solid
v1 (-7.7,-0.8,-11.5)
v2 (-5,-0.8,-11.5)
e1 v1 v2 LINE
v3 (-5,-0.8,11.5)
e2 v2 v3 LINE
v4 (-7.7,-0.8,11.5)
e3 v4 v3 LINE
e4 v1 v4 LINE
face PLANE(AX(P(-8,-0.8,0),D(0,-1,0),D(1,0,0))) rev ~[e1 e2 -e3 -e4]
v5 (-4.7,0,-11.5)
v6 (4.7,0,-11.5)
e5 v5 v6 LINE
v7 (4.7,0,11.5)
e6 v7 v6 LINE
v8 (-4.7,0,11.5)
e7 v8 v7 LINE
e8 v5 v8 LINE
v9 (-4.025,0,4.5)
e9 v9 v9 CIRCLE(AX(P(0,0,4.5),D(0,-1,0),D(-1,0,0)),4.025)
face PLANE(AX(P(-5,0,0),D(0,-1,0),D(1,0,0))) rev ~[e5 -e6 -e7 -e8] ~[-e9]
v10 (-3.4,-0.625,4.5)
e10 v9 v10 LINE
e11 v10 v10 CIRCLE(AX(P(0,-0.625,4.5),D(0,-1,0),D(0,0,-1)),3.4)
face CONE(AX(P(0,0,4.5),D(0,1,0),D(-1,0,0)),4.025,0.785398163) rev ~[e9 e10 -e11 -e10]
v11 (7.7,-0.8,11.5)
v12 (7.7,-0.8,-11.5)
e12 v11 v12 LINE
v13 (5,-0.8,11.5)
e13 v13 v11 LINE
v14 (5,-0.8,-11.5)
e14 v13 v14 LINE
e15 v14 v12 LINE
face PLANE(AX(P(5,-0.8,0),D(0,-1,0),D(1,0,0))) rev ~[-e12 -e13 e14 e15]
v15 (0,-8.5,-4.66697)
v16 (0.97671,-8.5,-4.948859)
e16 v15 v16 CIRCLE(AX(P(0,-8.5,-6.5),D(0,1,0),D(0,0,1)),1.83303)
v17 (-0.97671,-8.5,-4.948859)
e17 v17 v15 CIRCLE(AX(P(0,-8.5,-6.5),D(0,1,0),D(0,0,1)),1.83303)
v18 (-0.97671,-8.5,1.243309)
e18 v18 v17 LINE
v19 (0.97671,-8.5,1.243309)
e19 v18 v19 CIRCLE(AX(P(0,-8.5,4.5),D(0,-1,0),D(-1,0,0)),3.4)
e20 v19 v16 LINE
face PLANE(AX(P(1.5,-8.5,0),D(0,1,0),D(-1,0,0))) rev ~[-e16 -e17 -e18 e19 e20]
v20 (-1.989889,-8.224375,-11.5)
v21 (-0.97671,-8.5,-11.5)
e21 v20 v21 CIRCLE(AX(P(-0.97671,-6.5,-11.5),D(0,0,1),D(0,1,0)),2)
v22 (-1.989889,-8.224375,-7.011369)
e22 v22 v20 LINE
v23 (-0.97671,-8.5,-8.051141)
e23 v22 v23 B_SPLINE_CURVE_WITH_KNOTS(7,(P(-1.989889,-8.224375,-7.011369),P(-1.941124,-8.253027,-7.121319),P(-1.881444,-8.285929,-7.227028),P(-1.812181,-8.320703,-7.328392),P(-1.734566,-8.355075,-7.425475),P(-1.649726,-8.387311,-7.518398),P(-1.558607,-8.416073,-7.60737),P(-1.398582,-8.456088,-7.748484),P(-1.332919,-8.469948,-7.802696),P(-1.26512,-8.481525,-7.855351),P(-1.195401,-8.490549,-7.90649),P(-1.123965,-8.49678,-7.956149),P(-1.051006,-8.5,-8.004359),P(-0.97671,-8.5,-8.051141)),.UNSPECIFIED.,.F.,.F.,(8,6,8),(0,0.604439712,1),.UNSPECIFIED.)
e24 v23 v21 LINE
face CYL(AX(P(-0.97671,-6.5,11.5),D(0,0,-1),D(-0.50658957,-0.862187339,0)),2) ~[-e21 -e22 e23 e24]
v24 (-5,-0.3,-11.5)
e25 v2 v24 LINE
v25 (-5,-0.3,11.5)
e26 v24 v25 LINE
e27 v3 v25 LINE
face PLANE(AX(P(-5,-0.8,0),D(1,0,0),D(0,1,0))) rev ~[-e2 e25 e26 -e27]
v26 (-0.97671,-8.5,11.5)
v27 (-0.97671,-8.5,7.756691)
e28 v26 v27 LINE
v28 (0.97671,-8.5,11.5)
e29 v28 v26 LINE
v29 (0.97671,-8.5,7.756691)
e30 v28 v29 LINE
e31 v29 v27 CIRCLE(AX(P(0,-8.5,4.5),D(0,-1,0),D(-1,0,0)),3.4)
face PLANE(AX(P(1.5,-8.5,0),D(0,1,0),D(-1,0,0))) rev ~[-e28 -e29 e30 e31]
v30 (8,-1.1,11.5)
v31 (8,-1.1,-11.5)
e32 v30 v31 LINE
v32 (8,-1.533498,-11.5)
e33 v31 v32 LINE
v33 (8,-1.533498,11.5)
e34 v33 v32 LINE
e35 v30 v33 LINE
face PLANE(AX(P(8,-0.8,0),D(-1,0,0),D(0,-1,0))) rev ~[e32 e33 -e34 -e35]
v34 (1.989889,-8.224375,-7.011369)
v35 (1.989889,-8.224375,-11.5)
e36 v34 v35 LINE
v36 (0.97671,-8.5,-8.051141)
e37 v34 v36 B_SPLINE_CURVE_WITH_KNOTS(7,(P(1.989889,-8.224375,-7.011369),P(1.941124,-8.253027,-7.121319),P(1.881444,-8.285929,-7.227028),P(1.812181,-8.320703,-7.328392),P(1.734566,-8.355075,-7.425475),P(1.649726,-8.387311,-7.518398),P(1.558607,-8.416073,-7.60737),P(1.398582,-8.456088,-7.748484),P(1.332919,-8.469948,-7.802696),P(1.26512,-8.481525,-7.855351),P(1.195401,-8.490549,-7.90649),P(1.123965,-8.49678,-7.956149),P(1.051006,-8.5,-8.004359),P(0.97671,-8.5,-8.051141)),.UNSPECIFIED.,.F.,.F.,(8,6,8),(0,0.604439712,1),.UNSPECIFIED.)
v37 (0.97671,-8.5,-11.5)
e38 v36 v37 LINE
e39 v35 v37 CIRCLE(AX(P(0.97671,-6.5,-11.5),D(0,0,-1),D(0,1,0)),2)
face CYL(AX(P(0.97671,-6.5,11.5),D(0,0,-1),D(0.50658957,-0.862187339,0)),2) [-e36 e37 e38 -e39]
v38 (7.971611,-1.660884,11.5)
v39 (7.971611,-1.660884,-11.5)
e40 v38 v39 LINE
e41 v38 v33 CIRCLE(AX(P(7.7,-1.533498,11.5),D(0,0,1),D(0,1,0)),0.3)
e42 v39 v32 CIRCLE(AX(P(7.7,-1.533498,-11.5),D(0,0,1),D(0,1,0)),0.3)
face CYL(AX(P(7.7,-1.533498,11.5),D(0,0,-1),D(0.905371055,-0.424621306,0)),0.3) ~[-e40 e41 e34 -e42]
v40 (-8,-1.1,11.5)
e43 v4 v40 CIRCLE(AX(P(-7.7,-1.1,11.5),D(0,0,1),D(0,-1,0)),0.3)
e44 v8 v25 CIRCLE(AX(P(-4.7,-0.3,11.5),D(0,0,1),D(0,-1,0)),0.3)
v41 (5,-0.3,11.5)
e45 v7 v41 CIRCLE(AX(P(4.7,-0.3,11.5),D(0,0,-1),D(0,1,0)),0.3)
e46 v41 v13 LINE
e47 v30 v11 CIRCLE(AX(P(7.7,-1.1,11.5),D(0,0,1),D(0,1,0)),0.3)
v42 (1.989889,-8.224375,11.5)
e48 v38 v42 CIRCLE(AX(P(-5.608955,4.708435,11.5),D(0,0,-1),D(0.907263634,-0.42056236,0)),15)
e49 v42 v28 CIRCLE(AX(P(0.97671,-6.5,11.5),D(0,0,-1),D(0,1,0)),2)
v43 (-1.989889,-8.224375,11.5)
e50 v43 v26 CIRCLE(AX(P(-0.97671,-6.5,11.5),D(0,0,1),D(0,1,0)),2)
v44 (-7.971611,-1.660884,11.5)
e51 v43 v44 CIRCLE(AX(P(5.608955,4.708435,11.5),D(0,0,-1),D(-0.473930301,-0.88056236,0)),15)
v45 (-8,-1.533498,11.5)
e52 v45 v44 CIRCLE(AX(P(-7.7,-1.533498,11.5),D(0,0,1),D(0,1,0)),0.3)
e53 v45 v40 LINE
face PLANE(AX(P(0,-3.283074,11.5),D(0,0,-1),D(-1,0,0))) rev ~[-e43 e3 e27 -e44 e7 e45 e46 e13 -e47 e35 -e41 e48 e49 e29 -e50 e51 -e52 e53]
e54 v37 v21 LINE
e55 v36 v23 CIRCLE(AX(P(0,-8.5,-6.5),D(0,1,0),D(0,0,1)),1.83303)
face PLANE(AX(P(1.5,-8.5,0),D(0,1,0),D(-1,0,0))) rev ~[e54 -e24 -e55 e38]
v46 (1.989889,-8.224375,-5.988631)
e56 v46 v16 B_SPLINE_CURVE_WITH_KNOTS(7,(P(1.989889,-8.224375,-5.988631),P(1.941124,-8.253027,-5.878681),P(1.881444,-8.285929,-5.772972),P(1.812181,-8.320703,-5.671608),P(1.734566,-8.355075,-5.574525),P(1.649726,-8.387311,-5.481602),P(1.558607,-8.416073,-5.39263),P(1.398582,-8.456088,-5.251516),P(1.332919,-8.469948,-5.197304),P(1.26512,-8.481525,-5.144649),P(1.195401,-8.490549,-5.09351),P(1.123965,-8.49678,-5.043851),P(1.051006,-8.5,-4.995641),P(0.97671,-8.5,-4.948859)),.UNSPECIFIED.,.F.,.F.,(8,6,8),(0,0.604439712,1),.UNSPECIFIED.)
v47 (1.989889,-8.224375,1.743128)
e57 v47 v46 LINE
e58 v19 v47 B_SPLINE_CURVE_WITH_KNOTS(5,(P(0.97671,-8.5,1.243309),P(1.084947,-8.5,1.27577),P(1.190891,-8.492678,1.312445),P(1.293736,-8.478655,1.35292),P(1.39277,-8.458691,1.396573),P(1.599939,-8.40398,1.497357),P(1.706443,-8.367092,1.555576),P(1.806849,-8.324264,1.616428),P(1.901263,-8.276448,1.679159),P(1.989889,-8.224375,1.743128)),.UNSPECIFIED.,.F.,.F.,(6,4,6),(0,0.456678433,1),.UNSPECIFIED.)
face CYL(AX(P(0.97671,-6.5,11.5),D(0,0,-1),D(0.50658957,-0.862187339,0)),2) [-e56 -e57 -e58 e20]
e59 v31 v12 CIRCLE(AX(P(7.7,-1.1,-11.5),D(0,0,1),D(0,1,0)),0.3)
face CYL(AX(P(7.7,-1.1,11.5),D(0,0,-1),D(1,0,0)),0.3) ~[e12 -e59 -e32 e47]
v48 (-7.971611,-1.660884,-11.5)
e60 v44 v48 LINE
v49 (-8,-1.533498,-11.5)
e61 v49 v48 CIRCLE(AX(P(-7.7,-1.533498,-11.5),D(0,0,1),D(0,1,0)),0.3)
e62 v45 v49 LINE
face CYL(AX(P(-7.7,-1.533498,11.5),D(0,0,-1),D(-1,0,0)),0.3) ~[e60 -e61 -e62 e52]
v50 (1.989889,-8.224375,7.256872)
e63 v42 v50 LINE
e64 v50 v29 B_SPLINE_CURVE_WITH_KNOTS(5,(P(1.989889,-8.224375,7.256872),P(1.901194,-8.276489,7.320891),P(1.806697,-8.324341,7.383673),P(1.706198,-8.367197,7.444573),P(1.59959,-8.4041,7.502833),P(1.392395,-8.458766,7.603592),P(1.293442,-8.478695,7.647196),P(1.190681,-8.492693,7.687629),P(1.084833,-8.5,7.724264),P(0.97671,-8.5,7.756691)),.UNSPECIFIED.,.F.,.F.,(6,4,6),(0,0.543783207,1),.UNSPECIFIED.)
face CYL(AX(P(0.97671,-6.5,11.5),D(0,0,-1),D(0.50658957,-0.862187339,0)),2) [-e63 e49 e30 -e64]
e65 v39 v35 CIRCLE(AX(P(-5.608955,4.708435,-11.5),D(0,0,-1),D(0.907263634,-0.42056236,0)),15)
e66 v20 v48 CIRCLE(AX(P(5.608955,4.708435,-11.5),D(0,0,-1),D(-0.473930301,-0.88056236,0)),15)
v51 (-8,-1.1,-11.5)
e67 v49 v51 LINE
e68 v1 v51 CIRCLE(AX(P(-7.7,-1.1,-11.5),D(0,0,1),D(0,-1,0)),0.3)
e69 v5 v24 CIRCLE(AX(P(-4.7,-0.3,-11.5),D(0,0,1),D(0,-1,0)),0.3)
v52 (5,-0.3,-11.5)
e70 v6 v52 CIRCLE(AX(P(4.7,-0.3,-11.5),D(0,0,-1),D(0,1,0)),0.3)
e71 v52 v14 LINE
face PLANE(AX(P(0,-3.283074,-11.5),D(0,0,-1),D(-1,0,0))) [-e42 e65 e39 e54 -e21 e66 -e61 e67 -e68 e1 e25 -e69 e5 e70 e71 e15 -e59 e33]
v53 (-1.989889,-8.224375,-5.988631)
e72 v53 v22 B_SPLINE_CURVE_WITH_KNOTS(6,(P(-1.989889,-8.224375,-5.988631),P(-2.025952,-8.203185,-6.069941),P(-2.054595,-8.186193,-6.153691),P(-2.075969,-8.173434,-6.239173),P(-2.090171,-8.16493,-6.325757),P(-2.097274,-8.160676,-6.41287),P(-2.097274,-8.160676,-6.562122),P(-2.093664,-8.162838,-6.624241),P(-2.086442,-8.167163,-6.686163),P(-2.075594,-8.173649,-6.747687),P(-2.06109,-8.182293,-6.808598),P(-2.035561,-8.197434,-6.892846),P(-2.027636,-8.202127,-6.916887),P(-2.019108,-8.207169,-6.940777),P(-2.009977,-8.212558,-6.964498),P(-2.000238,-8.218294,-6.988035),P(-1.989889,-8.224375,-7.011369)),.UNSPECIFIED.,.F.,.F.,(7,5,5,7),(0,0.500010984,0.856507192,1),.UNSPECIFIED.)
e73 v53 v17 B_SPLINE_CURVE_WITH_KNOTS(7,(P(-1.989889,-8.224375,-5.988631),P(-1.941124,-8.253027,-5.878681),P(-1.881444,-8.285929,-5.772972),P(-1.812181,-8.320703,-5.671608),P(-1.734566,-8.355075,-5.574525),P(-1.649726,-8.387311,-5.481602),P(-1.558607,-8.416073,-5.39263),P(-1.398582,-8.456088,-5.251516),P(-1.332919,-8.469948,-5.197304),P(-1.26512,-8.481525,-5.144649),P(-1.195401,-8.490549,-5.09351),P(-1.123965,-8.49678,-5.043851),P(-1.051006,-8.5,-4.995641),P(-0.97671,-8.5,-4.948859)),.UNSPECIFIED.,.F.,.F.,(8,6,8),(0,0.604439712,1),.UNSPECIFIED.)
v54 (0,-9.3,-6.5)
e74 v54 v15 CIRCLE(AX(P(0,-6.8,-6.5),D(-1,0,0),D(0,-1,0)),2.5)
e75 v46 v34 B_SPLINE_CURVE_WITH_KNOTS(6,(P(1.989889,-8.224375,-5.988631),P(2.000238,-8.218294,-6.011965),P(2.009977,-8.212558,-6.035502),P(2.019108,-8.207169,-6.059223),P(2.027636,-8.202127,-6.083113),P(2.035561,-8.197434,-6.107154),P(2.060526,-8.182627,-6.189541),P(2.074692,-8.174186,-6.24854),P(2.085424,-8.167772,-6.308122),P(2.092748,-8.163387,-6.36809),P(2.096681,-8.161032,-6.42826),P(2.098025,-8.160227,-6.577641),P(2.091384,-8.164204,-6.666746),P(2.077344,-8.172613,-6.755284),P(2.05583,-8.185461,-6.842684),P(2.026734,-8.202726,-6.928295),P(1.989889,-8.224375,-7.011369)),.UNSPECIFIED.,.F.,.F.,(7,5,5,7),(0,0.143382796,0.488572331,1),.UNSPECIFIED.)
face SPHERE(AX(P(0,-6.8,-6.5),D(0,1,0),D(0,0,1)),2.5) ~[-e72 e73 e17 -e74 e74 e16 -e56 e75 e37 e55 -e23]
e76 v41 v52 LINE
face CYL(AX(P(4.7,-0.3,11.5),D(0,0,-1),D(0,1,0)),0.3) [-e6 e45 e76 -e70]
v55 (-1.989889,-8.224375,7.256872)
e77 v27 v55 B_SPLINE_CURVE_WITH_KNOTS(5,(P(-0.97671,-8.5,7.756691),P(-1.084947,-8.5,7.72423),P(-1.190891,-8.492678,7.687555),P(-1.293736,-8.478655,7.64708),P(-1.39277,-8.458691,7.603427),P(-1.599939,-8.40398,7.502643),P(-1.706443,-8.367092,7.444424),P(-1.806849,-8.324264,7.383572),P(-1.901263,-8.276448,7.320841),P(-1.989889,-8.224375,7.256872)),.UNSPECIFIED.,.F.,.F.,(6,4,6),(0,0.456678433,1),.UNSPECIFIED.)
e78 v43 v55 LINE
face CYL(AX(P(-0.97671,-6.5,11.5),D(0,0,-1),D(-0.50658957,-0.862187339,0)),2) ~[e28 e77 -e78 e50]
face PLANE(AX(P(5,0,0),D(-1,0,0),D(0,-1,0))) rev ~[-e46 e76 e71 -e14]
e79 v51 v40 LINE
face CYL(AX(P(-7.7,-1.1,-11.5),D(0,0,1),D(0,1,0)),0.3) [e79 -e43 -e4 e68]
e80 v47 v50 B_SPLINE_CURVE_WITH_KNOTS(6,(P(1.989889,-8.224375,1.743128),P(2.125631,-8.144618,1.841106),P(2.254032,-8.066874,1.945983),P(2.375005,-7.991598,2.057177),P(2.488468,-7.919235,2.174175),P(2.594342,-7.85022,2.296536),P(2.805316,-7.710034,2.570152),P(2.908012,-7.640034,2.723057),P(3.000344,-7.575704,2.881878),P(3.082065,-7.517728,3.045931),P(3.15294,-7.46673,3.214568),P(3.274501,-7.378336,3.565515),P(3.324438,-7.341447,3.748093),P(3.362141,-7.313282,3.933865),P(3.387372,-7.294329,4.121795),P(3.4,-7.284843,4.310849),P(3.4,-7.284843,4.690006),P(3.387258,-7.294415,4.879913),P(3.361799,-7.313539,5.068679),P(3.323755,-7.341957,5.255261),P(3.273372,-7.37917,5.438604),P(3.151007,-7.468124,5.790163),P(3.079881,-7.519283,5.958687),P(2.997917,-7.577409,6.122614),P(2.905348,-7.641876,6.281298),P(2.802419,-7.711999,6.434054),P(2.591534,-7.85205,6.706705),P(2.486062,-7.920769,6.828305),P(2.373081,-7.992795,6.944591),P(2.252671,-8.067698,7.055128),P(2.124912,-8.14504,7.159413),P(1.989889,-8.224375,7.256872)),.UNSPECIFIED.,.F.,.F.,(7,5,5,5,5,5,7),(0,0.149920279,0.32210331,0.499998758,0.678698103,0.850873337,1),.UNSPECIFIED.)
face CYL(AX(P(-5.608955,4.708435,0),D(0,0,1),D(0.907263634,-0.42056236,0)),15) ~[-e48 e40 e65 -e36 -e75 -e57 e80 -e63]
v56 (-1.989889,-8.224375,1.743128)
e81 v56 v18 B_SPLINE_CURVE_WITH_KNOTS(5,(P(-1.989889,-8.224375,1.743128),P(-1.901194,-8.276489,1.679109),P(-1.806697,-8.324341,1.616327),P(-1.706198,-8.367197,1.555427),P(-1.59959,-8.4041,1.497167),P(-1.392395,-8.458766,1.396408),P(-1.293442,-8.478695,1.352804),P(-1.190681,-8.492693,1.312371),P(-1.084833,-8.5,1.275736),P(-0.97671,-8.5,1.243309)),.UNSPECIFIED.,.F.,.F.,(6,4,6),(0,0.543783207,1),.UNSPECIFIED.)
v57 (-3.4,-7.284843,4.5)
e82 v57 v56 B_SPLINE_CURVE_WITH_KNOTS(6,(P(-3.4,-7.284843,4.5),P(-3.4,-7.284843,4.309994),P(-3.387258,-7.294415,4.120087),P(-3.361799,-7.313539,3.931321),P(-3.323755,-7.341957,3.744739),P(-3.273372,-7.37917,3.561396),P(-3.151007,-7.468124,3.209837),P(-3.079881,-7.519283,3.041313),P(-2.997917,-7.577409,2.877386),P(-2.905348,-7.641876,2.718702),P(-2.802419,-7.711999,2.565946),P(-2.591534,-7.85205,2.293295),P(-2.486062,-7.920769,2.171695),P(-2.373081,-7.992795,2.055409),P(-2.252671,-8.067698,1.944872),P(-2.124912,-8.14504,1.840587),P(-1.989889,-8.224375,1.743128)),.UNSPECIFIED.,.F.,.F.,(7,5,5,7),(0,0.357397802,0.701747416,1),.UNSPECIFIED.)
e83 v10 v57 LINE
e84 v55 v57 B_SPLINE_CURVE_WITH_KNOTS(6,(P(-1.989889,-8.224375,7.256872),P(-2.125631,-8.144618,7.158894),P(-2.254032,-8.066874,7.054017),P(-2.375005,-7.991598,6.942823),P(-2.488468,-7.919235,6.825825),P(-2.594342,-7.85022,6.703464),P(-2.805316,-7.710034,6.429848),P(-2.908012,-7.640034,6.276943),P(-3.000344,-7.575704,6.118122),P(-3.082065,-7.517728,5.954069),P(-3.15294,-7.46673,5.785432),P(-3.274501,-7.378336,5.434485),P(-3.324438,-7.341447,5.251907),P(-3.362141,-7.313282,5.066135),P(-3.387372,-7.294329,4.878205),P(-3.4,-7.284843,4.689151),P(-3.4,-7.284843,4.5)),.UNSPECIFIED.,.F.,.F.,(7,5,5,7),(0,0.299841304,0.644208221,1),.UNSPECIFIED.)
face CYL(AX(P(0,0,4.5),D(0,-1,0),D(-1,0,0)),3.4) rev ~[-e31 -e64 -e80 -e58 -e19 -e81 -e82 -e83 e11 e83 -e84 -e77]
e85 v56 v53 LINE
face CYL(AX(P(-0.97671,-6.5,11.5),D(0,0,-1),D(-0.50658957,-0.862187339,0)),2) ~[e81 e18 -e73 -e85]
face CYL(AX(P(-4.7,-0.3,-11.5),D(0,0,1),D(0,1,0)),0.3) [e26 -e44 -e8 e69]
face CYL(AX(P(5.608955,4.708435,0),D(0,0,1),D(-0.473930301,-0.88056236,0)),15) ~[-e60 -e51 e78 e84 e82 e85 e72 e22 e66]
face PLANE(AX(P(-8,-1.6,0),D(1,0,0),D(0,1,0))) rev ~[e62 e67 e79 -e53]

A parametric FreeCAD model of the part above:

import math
import FreeCAD as App
import Part
import Sketcher
from FreeCAD import Vector
Q = App.Units.Quantity


def edges_at(feature, points):
    """Names of the edges that pass closest to the given points."""
    edges = feature.Shape.Edges
    near = lambda p: min(range(len(edges)), key=lambda i: edges[i].distToShape(Part.Vertex(*p))[0])
    return sorted({f"Edge{near(p) + 1}" for p in points})

doc = App.newDocument("Part")
body = doc.addObject("PartDesign::Body", "Body")

# Sketch on XY plane
sketch1 = doc.addObject("Sketcher::SketchObject", "Sketch")
body.addObject(sketch1)
sketch1.AttachmentSupport = (doc.XY_Plane, [""])
sketch1.MapMode = "FlatFace"
sketch1.addGeometry(Part.LineSegment(Vector(5, 0, 0), Vector(-5, 0, 0)), False)
sketch1.addGeometry(Part.LineSegment(Vector(-5, 0, 0), Vector(-5, -0.8, 0)), False)
sketch1.addGeometry(Part.LineSegment(Vector(-5, -0.8, 0), Vector(-8, -0.8, 0)), False)
sketch1.addGeometry(Part.LineSegment(Vector(-8, -0.8, 0), Vector(-8, -1.6, 0)), False)
sketch1.addGeometry(Part.ArcOfCircle(Part.Circle(Vector(5.608955, 4.708435, 0), Vector(0, 0, 1), 15), math.radians(-155.129903), math.radians(-118.289725)), False)
sketch1.addGeometry(Part.LineSegment(Vector(-1.5, -8.5, 0), Vector(1.5, -8.5, 0)), False)
sketch1.addGeometry(Part.ArcOfCircle(Part.Circle(Vector(-5.608955, 4.708435, 0), Vector(0, 0, 1), 15), math.radians(-61.710275), math.radians(-24.870097)), False)
sketch1.addGeometry(Part.LineSegment(Vector(8, -1.6, 0), Vector(8, -0.8, 0)), False)
sketch1.addGeometry(Part.LineSegment(Vector(8, -0.8, 0), Vector(5, -0.8, 0)), False)
sketch1.addGeometry(Part.LineSegment(Vector(5, -0.8, 0), Vector(5, 0, 0)), False)
sketch1.addConstraint(Sketcher.Constraint("Coincident", 0, 2, 1, 1))
sketch1.addConstraint(Sketcher.Constraint("Coincident", 1, 2, 2, 1))
sketch1.addConstraint(Sketcher.Constraint("Coincident", 2, 2, 3, 1))
sketch1.addConstraint(Sketcher.Constraint("Coincident", 3, 2, 4, 1))
sketch1.addConstraint(Sketcher.Constraint("Coincident", 4, 2, 5, 1))
sketch1.addConstraint(Sketcher.Constraint("Coincident", 5, 2, 6, 1))
sketch1.addConstraint(Sketcher.Constraint("Coincident", 6, 2, 7, 1))
sketch1.addConstraint(Sketcher.Constraint("Coincident", 7, 2, 8, 1))
sketch1.addConstraint(Sketcher.Constraint("Coincident", 8, 2, 9, 1))
sketch1.addConstraint(Sketcher.Constraint("Coincident", 9, 2, 0, 1))
sketch1.addConstraint(Sketcher.Constraint("Horizontal", 0))
sketch1.addConstraint(Sketcher.Constraint("Vertical", 1))
sketch1.addConstraint(Sketcher.Constraint("Horizontal", 2))
sketch1.addConstraint(Sketcher.Constraint("Vertical", 3))
sketch1.addConstraint(Sketcher.Constraint("Horizontal", 5))
sketch1.addConstraint(Sketcher.Constraint("Vertical", 7))
sketch1.addConstraint(Sketcher.Constraint("Horizontal", 8))
sketch1.addConstraint(Sketcher.Constraint("Vertical", 9))
sketch1.addConstraint(Sketcher.Constraint("Equal", 4, 6))
sketch1.addConstraint(Sketcher.Constraint("Symmetric", 0, 2, 9, 2, -1, 1))
sketch1.addConstraint(Sketcher.Constraint("Symmetric", 4, 3, 6, 3, -2))
sketch1.addConstraint(Sketcher.Constraint("Symmetric", 2, 2, 7, 2, -2))
sketch1.addConstraint(Sketcher.Constraint("Equal", 2, 5))
sketch1.addConstraint(Sketcher.Constraint("Equal", 1, 3))
sketch1.addConstraint(Sketcher.Constraint("Radius", 4, Q("15 mm")))
sketch1.addConstraint(Sketcher.Constraint("DistanceX", 0, 2, 0, 1, Q("10 mm")))
sketch1.addConstraint(Sketcher.Constraint("DistanceX", 2, 2, 2, 1, Q("3 mm")))
sketch1.addConstraint(Sketcher.Constraint("DistanceY", 1, 2, 1, 1, Q("0.8 mm")))
sketch1.addConstraint(Sketcher.Constraint("DistanceY", 4, 2, -1, 1, Q("8.5 mm")))
pad1 = doc.addObject("PartDesign::Pad", "Pad")
body.addObject(pad1)
pad1.Profile = sketch1
pad1.Length = 23
pad1.Midplane = True
doc.recompute()

fillet = doc.addObject("PartDesign::Fillet", "Fillet")
body.addObject(fillet)
fillet.Base = (pad1, edges_at(pad1, [
    (8, -0.8, 0),
    (8, -1.6, 0),
    (-8, -1.6, 0),
    (-8, -0.8, 0),
    (-5, 0, 0),
    (5, 0, 0),
]))
fillet.Radius = 0.3
doc.recompute()

fillet2 = doc.addObject("PartDesign::Fillet", "Fillet001")
body.addObject(fillet2)
fillet2.Base = (fillet, edges_at(fillet, [(1.5, -8.5, 0), (-1.5, -8.5, 0)]))
fillet2.Radius = 2

# Sketch on XZ plane
sketch2 = doc.addObject("Sketcher::SketchObject", "Sketch001")
body.addObject(sketch2)
sketch2.AttachmentSupport = (doc.XZ_Plane, [""])
sketch2.MapMode = "FlatFace"
sketch2.addGeometry(Part.Circle(Vector(0, 4.5, 0), Vector(0, 0, 1), 3.4), False)
sketch2.addConstraint(Sketcher.Constraint("PointOnObject", 0, 3, -2))
sketch2.addConstraint(Sketcher.Constraint("Diameter", 0, Q("6.8 mm")))
sketch2.addConstraint(Sketcher.Constraint("DistanceY", -1, 1, 0, 3, Q("4.5 mm")))
doc.recompute()
hole = doc.addObject("PartDesign::Hole", "Hole")
body.addObject(hole)
hole.Profile = sketch2
hole.ThreadType = "None"
hole.Diameter = 6.8
hole.DepthType = "ThroughAll"
hole.HoleCutType = "Countersink"
hole.HoleCutDiameter = 8.05
hole.HoleCutCountersinkAngle = 90
hole.Reversed = True

# Sketch on YZ plane
sketch3 = doc.addObject("Sketcher::SketchObject", "Sketch002")
body.addObject(sketch3)
sketch3.AttachmentSupport = (doc.YZ_Plane, [""])
sketch3.MapMode = "FlatFace"
sketch3.addGeometry(Part.LineSegment(Vector(-9.3, -6.5, 0), Vector(-4.3, -6.5, 0)), False)
sketch3.addGeometry(Part.ArcOfCircle(Part.Circle(Vector(-6.8, -6.5, 0), Vector(0, 0, 1), 2.5), math.radians(0), math.radians(180)), False)
sketch3.addGeometry(Part.LineSegment(Vector(-4.3, -6.5, 0), Vector(-9.3, -6.5, 0)), True)  # axis
sketch3.addConstraint(Sketcher.Constraint("Coincident", 0, 1, 1, 2))
sketch3.addConstraint(Sketcher.Constraint("Coincident", 1, 1, 0, 2))
sketch3.addConstraint(Sketcher.Constraint("Horizontal", 0))
sketch3.addConstraint(Sketcher.Constraint("Horizontal", 2))
sketch3.addConstraint(Sketcher.Constraint("Coincident", 2, 1, 1, 1))
sketch3.addConstraint(Sketcher.Constraint("Horizontal", 1, 3, 0, 1))
sketch3.addConstraint(Sketcher.Constraint("Equal", 0, 2))
sketch3.addConstraint(Sketcher.Constraint("Radius", 1, Q("2.5 mm")))
sketch3.addConstraint(Sketcher.Constraint("DistanceX", 1, 3, -1, 1, Q("6.8 mm")))
sketch3.addConstraint(Sketcher.Constraint("DistanceY", 1, 3, -1, 1, Q("6.5 mm")))
revolution = doc.addObject("PartDesign::Revolution", "Revolution")
body.addObject(revolution)
revolution.Profile = sketch3
revolution.ReferenceAxis = (sketch3, ["Axis0"])
revolution.Angle = 360

doc.recompute()
